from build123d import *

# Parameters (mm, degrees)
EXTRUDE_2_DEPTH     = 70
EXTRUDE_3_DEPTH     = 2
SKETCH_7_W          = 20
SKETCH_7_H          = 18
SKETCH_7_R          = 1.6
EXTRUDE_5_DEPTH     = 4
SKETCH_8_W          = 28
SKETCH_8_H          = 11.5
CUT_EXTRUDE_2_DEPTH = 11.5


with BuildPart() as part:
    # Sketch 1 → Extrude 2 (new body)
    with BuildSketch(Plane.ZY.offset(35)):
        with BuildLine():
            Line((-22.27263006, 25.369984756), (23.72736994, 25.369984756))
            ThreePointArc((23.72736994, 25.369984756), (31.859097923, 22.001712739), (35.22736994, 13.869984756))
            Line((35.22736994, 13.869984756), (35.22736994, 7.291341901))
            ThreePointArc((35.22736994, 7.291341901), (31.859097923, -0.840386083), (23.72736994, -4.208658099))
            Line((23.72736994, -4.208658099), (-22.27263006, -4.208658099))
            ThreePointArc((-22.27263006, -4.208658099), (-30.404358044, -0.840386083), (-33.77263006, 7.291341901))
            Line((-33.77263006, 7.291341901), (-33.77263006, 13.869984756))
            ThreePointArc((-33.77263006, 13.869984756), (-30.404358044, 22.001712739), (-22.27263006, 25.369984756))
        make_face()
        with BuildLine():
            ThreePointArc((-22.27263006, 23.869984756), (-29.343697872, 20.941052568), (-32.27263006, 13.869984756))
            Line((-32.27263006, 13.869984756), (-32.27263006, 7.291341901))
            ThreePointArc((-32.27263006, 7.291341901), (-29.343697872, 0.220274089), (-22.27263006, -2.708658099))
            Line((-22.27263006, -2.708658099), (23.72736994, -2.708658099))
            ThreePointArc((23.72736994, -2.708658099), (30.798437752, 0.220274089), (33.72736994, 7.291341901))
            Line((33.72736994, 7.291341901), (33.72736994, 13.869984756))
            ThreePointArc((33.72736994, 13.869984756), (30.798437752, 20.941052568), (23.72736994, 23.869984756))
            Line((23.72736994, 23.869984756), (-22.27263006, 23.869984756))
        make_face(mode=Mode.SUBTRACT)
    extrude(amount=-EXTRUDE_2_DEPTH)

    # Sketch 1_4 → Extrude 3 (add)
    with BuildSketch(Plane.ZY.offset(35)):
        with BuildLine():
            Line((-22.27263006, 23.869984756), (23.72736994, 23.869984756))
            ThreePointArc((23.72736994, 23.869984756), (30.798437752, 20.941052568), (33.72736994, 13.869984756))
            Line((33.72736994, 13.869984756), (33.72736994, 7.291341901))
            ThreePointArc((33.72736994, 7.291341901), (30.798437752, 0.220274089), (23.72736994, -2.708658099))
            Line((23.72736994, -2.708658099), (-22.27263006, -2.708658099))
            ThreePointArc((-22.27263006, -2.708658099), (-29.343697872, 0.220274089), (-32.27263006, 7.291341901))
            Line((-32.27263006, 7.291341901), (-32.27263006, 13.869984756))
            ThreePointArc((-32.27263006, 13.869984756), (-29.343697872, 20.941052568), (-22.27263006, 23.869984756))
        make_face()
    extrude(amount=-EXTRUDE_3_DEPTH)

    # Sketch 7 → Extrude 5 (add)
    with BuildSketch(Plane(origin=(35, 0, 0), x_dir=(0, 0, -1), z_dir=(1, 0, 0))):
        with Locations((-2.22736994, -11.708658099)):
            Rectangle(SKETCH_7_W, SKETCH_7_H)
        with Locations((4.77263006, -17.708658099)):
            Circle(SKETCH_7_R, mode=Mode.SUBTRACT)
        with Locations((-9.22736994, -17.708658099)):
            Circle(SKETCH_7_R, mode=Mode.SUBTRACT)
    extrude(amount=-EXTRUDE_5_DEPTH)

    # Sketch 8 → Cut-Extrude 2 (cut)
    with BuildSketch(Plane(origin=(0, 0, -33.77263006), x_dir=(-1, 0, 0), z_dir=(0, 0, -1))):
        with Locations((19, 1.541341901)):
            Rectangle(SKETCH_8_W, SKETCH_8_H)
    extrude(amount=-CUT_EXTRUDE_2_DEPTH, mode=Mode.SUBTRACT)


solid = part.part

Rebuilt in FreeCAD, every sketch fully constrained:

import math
import FreeCAD as App
import Part
import Sketcher
Q = App.Units.Quantity

doc = App.newDocument("Part")
body = doc.addObject("PartDesign::Body", "Body")

# Sketch on YZ plane
sketch1 = body.newObject("Sketcher::SketchObject", "Sketch")
sketch1.AttachmentSupport = (doc.getObject("YZ_Plane"), [""])
sketch1.MapMode = "FlatFace"
sketch1.AttachmentOffset = App.Placement(App.Vector(0, 0, -35), App.Rotation())
sketch1.addGeometry([
    Part.LineSegment(App.Vector(25, 24, 0), App.Vector(25, -22, 0)),  # 0
    Part.ArcOfCircle(Part.Circle(App.Vector(14, -22, 0), App.Vector(0, 0, 1), 12), math.radians(-90), math.radians(0)),  # 1
    Part.LineSegment(App.Vector(14, -34, 0), App.Vector(7, -34, 0)),  # 2
    Part.ArcOfCircle(Part.Circle(App.Vector(7, -22, 0), App.Vector(0, 0, 1), 11), math.radians(180), math.radians(270)),  # 3
    Part.LineSegment(App.Vector(-4, -22, 0), App.Vector(-4, 24, 0)),  # 4
    Part.ArcOfCircle(Part.Circle(App.Vector(7, 24, 0), App.Vector(0, 0, 1), 12), math.radians(90), math.radians(180)),  # 5
    Part.LineSegment(App.Vector(7, 35, 0), App.Vector(14, 35, 0)),  # 6
    Part.ArcOfCircle(Part.Circle(App.Vector(14, 24, 0), App.Vector(0, 0, 1), 12), math.radians(0), math.radians(90)),  # 7
    Part.LineSegment(App.Vector(24, -22, 0), App.Vector(24, 24, 0)),  # 8
    Part.ArcOfCircle(Part.Circle(App.Vector(14, 24, 0), App.Vector(0, 0, 1), 10), math.radians(0), math.radians(90)),  # 9
    Part.LineSegment(App.Vector(14, 34, 0), App.Vector(7, 34, 0)),  # 10
    Part.ArcOfCircle(Part.Circle(App.Vector(7, 24, 0), App.Vector(0, 0, 1), 10), math.radians(90), math.radians(180)),  # 11
    Part.LineSegment(App.Vector(-3, 24, 0), App.Vector(-3, -22, 0)),  # 12
    Part.ArcOfCircle(Part.Circle(App.Vector(7, -22, 0), App.Vector(0, 0, 1), 10), math.radians(180), math.radians(270)),  # 13
    Part.LineSegment(App.Vector(7, -32, 0), App.Vector(14, -32, 0)),  # 14
    Part.ArcOfCircle(Part.Circle(App.Vector(14, -22, 0), App.Vector(0, 0, 1), 10), math.radians(-90), math.radians(0)),  # 15
], False)
sketch1.addConstraint([
    Sketcher.Constraint("Tangent", 0, 2, 1, 2),
    Sketcher.Constraint("Tangent", 1, 1, 2, 1),
    Sketcher.Constraint("Tangent", 2, 2, 3, 2),
    Sketcher.Constraint("Tangent", 3, 1, 4, 1),
    Sketcher.Constraint("Tangent", 4, 2, 5, 2),
    Sketcher.Constraint("Tangent", 5, 1, 6, 1),
    Sketcher.Constraint("Tangent", 6, 2, 7, 2),
    Sketcher.Constraint("Tangent", 7, 1, 0, 1),
    Sketcher.Constraint("Tangent", 8, 2, 9, 1),
    Sketcher.Constraint("Tangent", 9, 2, 10, 1),
    Sketcher.Constraint("Tangent", 10, 2, 11, 1),
    Sketcher.Constraint("Tangent", 11, 2, 12, 1),
    Sketcher.Constraint("Tangent", 12, 2, 13, 1),
    Sketcher.Constraint("Tangent", 13, 2, 14, 1),
    Sketcher.Constraint("Tangent", 14, 2, 15, 1),
    Sketcher.Constraint("Tangent", 15, 2, 8, 1),
    Sketcher.Constraint("Vertical", 0),
    Sketcher.Constraint("Horizontal", 2),
    Sketcher.Constraint("Vertical", 4),
    Sketcher.Constraint("Horizontal", 6),
    Sketcher.Constraint("Vertical", 8),
    Sketcher.Constraint("Horizontal", 10),
    Sketcher.Constraint("Vertical", 12),
    Sketcher.Constraint("Horizontal", 14),
    Sketcher.Constraint("Coincident", 9, 3, 7, 3),
    Sketcher.Constraint("Coincident", 11, 3, 5, 3),
    Sketcher.Constraint("Coincident", 13, 3, 3, 3),
    Sketcher.Constraint("Equal", 1, 3),
    Sketcher.Constraint("Equal", 3, 5),
    Sketcher.Constraint("Equal", 5, 7),
    Sketcher.Constraint("Equal", 13, 15),
    Sketcher.Constraint("Radius", 9, Q("10 mm")),
    Sketcher.Constraint("Radius", 1, Q("11.5 mm")),
    Sketcher.Constraint("DistanceY", 0, 2, 0, 1, Q("46 mm")),
    Sketcher.Constraint("DistanceX", 2, 2, 2, 1, Q("6.578643 mm")),
    Sketcher.Constraint("DistanceY", 1, 3, -1, 1, Q("22.27263 mm")),
    Sketcher.Constraint("DistanceX", -1, 1, 3, 3, Q("7.291342 mm")),
])
pad1 = body.newObject("PartDesign::Pad", "Pad")
pad1.Profile = sketch1
pad1.Length = 70

# Sketch on YZ plane
sketch2 = body.newObject("Sketcher::SketchObject", "Sketch001")
sketch2.AttachmentSupport = (doc.getObject("YZ_Plane"), [""])
sketch2.MapMode = "FlatFace"
sketch2.AttachmentOffset = App.Placement(App.Vector(0, 0, -35), App.Rotation())
sketch2.addGeometry([
    Part.LineSegment(App.Vector(24, 24, 0), App.Vector(24, -22, 0)),  # 0
    Part.ArcOfCircle(Part.Circle(App.Vector(14, -22, 0), App.Vector(0, 0, 1), 10), math.radians(-90), math.radians(0)),  # 1
    Part.LineSegment(App.Vector(14, -32, 0), App.Vector(7, -32, 0)),  # 2
    Part.ArcOfCircle(Part.Circle(App.Vector(7, -22, 0), App.Vector(0, 0, 1), 10), math.radians(180), math.radians(270)),  # 3
    Part.LineSegment(App.Vector(-3, -22, 0), App.Vector(-3, 24, 0)),  # 4
    Part.ArcOfCircle(Part.Circle(App.Vector(7, 24, 0), App.Vector(0, 0, 1), 10), math.radians(90), math.radians(180)),  # 5
    Part.LineSegment(App.Vector(7, 34, 0), App.Vector(14, 34, 0)),  # 6
    Part.ArcOfCircle(Part.Circle(App.Vector(14, 24, 0), App.Vector(0, 0, 1), 10), math.radians(0), math.radians(90)),  # 7
], False)
sketch2.addConstraint([
    Sketcher.Constraint("Tangent", 0, 2, 1, 2),
    Sketcher.Constraint("Tangent", 1, 1, 2, 1),
    Sketcher.Constraint("Tangent", 2, 2, 3, 2),
    Sketcher.Constraint("Tangent", 3, 1, 4, 1),
    Sketcher.Constraint("Tangent", 4, 2, 5, 2),
    Sketcher.Constraint("Tangent", 5, 1, 6, 1),
    Sketcher.Constraint("Tangent", 6, 2, 7, 2),
    Sketcher.Constraint("Tangent", 7, 1, 0, 1),
    Sketcher.Constraint("Vertical", 0),
    Sketcher.Constraint("Horizontal", 2),
    Sketcher.Constraint("Vertical", 4),
    Sketcher.Constraint("Horizontal", 6),
    Sketcher.Constraint("Equal", 1, 3),
    Sketcher.Constraint("Equal", 3, 5),
    Sketcher.Constraint("Equal", 5, 7),
    Sketcher.Constraint("Radius", 1, Q("10 mm")),
    Sketcher.Constraint("DistanceY", 0, 2, 0, 1, Q("46 mm")),
    Sketcher.Constraint("DistanceX", 2, 2, 2, 1, Q("6.578643 mm")),
    Sketcher.Constraint("DistanceY", 1, 3, -1, 1, Q("22.27263 mm")),
    Sketcher.Constraint("DistanceX", -1, 1, 3, 3, Q("7.291342 mm")),
])
pad2 = body.newObject("PartDesign::Pad", "Pad001")
pad2.Profile = sketch2
pad2.Length = 2

# Sketch on YZ plane
sketch3 = body.newObject("Sketcher::SketchObject", "Sketch002")
sketch3.AttachmentSupport = (doc.getObject("YZ_Plane"), [""])
sketch3.MapMode = "FlatFace"
sketch3.AttachmentOffset = App.Placement(App.Vector(0, 0, 35), App.Rotation())
sketch3.addGeometry([
    Part.LineSegment(App.Vector(-2.7, 12.2, 0), App.Vector(-20.7, 12.2, 0)),  # 0
    Part.LineSegment(App.Vector(-20.7, 12.2, 0), App.Vector(-20.7, -7.8, 0)),  # 1
    Part.LineSegment(App.Vector(-20.7, -7.8, 0), App.Vector(-2.7, -7.8, 0)),  # 2
    Part.LineSegment(App.Vector(-2.7, -7.8, 0), App.Vector(-2.7, 12.2, 0)),  # 3
    Part.Circle(App.Vector(-17.7, 9.2, 0), App.Vector(0, 0, 1), 1.6),  # 4
    Part.Circle(App.Vector(-17.7, -4.8, 0), App.Vector(0, 0, 1), 1.6),  # 5
], False)
sketch3.addConstraint([
    Sketcher.Constraint("Coincident", 0, 2, 1, 1),
    Sketcher.Constraint("Coincident", 1, 2, 2, 1),
    Sketcher.Constraint("Coincident", 2, 2, 3, 1),
    Sketcher.Constraint("Coincident", 3, 2, 0, 1),
    Sketcher.Constraint("Horizontal", 0),
    Sketcher.Constraint("Vertical", 1),
    Sketcher.Constraint("Horizontal", 2),
    Sketcher.Constraint("Vertical", 3),
    Sketcher.Constraint("Equal", 4, 5),
    Sketcher.Constraint("Vertical", 4, 3, 5, 3),
    Sketcher.Constraint("Diameter", 4, Q("3.2 mm")),
    Sketcher.Constraint("DistanceX", 0, 2, 0, 1, Q("18 mm")),
    Sketcher.Constraint("DistanceY", 1, 2, 1, 1, Q("20 mm")),
    Sketcher.Constraint("DistanceY", 5, 3, 4, 3, Q("14 mm")),
    Sketcher.Constraint("DistanceX", 0, 2, 4, 3, Q("3 mm")),
    Sketcher.Constraint("DistanceY", 4, 3, 0, 2, Q("3 mm")),
    Sketcher.Constraint("DistanceX", 4, 3, -1, 1, Q("17.708658 mm")),
    Sketcher.Constraint("DistanceY", -1, 1, 4, 3, Q("9.22737 mm")),
])
pad3 = body.newObject("PartDesign::Pad", "Pad002")
pad3.Profile = sketch3
pad3.Length = 4
pad3.Reversed = True

# Sketch on XY plane
sketch4 = body.newObject("Sketcher::SketchObject", "Sketch003")
sketch4.AttachmentSupport = (doc.getObject("XY_Plane"), [""])
sketch4.MapMode = "FlatFace"
sketch4.AttachmentOffset = App.Placement(App.Vector(0, 0, -33.77263), App.Rotation())
sketch4.addGeometry([
    Part.LineSegment(App.Vector(-5, 7, 0), App.Vector(-5, -4, 0)),
    Part.LineSegment(App.Vector(-5, -4, 0), App.Vector(-33, -4, 0)),
    Part.LineSegment(App.Vector(-33, -4, 0), App.Vector(-33, 7, 0)),
    Part.LineSegment(App.Vector(-33, 7, 0), App.Vector(-5, 7, 0)),
], False)
sketch4.addConstraint([
    Sketcher.Constraint("Coincident", 0, 2, 1, 1),
    Sketcher.Constraint("Coincident", 1, 2, 2, 1),
    Sketcher.Constraint("Coincident", 2, 2, 3, 1),
    Sketcher.Constraint("Coincident", 3, 2, 0, 1),
    Sketcher.Constraint("Vertical", 0),
    Sketcher.Constraint("Horizontal", 1),
    Sketcher.Constraint("Vertical", 2),
    Sketcher.Constraint("Horizontal", 3),
    Sketcher.Constraint("DistanceX", 1, 2, 1, 1, Q("28 mm")),
    Sketcher.Constraint("DistanceY", 0, 2, 0, 1, Q("11.5 mm")),
    Sketcher.Constraint("DistanceX", 0, 2, -1, 1, Q("5 mm")),
    Sketcher.Constraint("DistanceY", 0, 2, -1, 1, Q("4.208658 mm")),
])
pocket1 = body.newObject("PartDesign::Pocket", "Pocket")
pocket1.Profile = sketch4
pocket1.Length = 11.5
pocket1.Reversed = True

doc.recompute()
